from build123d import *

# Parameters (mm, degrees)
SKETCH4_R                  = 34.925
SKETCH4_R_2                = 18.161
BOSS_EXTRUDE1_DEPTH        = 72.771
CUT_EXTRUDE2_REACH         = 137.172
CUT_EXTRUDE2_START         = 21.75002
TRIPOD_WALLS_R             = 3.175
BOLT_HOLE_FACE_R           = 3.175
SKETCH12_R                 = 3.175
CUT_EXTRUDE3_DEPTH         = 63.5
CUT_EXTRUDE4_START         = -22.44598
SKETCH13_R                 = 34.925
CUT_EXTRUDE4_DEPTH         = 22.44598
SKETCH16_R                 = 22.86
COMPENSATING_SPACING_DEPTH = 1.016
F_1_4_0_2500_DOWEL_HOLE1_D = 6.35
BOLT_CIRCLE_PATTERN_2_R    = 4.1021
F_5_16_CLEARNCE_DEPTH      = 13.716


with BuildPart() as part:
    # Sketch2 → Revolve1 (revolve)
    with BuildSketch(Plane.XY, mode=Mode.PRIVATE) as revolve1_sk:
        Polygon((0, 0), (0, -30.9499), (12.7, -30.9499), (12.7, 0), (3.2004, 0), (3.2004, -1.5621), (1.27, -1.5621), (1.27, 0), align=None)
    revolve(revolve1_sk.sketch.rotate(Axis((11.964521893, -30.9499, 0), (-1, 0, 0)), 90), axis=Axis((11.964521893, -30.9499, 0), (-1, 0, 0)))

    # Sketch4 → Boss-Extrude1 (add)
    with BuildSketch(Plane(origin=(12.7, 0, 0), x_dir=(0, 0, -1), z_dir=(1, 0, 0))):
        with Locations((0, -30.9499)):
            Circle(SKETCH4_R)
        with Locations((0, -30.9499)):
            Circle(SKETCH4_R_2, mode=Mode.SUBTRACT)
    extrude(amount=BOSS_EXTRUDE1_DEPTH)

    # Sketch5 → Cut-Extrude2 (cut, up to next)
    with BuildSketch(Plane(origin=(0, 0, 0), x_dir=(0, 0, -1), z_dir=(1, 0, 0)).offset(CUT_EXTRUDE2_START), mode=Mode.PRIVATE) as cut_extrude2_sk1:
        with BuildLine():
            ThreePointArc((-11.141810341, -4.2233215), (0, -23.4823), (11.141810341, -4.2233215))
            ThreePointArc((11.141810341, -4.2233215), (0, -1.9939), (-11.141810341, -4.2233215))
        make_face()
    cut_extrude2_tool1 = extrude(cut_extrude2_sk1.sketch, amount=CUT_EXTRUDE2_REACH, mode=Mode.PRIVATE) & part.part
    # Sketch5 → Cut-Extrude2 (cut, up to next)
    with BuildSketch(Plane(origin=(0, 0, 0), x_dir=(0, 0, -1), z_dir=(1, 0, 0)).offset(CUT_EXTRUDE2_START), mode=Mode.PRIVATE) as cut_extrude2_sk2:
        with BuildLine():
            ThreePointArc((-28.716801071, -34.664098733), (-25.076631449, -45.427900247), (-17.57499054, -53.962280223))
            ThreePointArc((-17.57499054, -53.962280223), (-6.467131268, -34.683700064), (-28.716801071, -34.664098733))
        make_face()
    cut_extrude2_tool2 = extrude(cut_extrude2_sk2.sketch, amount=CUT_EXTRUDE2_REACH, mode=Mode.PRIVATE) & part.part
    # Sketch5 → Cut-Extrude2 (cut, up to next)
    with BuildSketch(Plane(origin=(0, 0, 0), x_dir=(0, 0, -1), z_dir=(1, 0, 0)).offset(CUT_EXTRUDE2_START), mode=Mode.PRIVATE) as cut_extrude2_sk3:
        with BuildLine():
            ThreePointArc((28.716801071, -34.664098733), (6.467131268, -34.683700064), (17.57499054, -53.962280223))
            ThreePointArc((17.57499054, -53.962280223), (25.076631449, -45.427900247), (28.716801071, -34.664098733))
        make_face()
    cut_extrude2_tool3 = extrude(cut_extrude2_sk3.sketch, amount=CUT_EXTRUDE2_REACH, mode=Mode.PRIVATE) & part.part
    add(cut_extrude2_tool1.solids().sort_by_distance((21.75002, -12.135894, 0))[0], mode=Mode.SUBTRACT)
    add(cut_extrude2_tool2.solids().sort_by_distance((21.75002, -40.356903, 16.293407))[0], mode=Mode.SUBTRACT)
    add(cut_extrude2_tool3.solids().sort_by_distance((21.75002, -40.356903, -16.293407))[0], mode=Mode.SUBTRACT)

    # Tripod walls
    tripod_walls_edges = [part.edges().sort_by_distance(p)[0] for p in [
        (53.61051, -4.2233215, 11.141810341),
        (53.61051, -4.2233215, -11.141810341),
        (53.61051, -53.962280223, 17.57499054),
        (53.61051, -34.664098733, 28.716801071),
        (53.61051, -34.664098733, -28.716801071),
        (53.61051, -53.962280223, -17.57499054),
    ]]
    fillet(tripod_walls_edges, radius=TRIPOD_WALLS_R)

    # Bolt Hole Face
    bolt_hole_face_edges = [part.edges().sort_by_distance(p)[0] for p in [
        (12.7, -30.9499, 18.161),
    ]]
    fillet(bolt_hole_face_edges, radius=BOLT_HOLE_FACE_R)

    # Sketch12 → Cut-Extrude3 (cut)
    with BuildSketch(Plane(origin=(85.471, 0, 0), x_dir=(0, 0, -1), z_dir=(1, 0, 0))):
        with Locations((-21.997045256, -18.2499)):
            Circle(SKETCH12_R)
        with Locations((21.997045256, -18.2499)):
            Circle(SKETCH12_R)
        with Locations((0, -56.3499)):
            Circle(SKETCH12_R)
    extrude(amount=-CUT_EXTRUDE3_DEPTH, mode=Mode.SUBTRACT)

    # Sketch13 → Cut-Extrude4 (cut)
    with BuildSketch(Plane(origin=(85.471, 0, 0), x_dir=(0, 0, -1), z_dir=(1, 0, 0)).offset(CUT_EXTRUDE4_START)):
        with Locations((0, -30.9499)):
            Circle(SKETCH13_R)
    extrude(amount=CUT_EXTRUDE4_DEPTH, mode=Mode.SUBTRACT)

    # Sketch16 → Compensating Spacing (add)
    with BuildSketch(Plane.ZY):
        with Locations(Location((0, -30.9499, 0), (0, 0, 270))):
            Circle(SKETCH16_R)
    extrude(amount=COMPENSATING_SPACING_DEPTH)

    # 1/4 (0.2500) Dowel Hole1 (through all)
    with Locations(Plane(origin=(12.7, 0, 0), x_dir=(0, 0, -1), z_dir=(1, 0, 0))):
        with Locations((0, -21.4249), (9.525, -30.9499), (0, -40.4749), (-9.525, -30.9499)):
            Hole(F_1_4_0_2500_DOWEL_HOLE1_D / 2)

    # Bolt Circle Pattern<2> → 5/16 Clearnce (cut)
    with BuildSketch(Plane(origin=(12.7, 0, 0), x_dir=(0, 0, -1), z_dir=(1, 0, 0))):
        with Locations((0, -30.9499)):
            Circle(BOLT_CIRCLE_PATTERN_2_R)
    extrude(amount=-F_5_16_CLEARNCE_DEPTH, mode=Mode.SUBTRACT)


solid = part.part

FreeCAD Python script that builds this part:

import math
import FreeCAD as App
import Part
import Sketcher

V = App.Vector
Q = App.Units.Quantity


def edges_at(feature, points):
    """Names of the edges that pass closest to the given points."""
    edges = feature.Shape.Edges
    near = lambda p: min(range(len(edges)), key=lambda i: edges[i].distToShape(Part.Vertex(*p))[0])
    return sorted({f"Edge{near(p) + 1}" for p in points})


def add_polygon(sketch, points):
    """Adds a closed chain of lines whose ends are joined by coincident constraints."""
    first, n = sketch.GeometryCount, len(points)
    for a, b in zip(points, points[1:] + points[:1]):
        sketch.addGeometry(Part.LineSegment(App.Vector(*a, 0), App.Vector(*b, 0)), False)
    for i in range(n):
        sketch.addConstraint(Sketcher.Constraint("Coincident", first + i, 2, first + (i + 1) % n, 1))

doc = App.newDocument("Part")
body = doc.addObject("PartDesign::Body", "Body")

sketch1 = body.newObject("Sketcher::SketchObject", "Sketch")
sketch1.AttachmentSupport = (doc.getObject("XY_Plane"), [""])
sketch1.MapMode = "FlatFace"
add_polygon(sketch1, [(0, 0), (0, -30.9), (12.7, -30.9), (12.7, 0), (3.2, 0), (3.2, -1.6), (1.3, -1.6), (1.3, 0)])
sketch1.addGeometry(Part.LineSegment(V(12.7, -30.9, 0), V(0, -30.9, 0)), True)
sketch1.addConstraint(Sketcher.Constraint("Vertical", 0))
sketch1.addConstraint(Sketcher.Constraint("Horizontal", 1))
sketch1.addConstraint(Sketcher.Constraint("Vertical", 2))
sketch1.addConstraint(Sketcher.Constraint("Horizontal", 3))
sketch1.addConstraint(Sketcher.Constraint("Vertical", 4))
sketch1.addConstraint(Sketcher.Constraint("Horizontal", 5))
sketch1.addConstraint(Sketcher.Constraint("Vertical", 6))
sketch1.addConstraint(Sketcher.Constraint("Horizontal", 7))
sketch1.addConstraint(Sketcher.Constraint("Horizontal", 8))
sketch1.addConstraint(Sketcher.Constraint("Coincident", 7, 2, -1, 1))
sketch1.addConstraint(Sketcher.Constraint("Coincident", 8, 1, 1, 2))
sketch1.addConstraint(Sketcher.Constraint("PointOnObject", 2, 2, -1))
sketch1.addConstraint(Sketcher.Constraint("PointOnObject", 8, 2, -2))
sketch1.addConstraint(Sketcher.Constraint("DistanceX", 1, 1, 1, 2, Q("0.5 in")))
sketch1.addConstraint(Sketcher.Constraint("DistanceX", 7, 2, 7, 1, Q("0.05 in")))
sketch1.addConstraint(Sketcher.Constraint("DistanceX", 3, 2, 3, 1, Q("0.374 in")))
sketch1.addConstraint(Sketcher.Constraint("DistanceY", 0, 2, 0, 1, Q("1.2185 in")))
sketch1.addConstraint(Sketcher.Constraint("DistanceY", 4, 2, 4, 1, Q("0.0615 in")))
revolution = body.newObject("PartDesign::Revolution", "Revolution")
revolution.Profile = sketch1
revolution.ReferenceAxis = (sketch1, ["Axis0"])
revolution.Angle = 360

sketch2 = body.newObject("Sketcher::SketchObject", "Sketch001")
sketch2.AttachmentSupport = (doc.getObject("YZ_Plane"), [""])
sketch2.MapMode = "FlatFace"
sketch2.AttachmentOffset = App.Placement(V(0, 0, 0.5 * 25.4), App.Rotation())
sketch2.addGeometry(Part.Circle(V(-31, 0, 0), V(0, 0, 1), 35), False)
sketch2.addGeometry(Part.Circle(V(-31, 0, 0), V(0, 0, 1), 18), False)
sketch2.addConstraint(Sketcher.Constraint("Coincident", 1, 3, 0, 3))
sketch2.addConstraint(Sketcher.Constraint("PointOnObject", 0, 3, -1))
sketch2.addConstraint(Sketcher.Constraint("Diameter", 0, Q("2.75 in")))
sketch2.addConstraint(Sketcher.Constraint("Diameter", 1, Q("1.43 in")))
sketch2.addConstraint(Sketcher.Constraint("DistanceX", 0, 3, -1, 1, Q("1.2185 in")))
pad1 = body.newObject("PartDesign::Pad", "Pad")
pad1.Profile = sketch2
pad1.Length = Q("2.865 in")

sketch3 = body.newObject("Sketcher::SketchObject", "Sketch002")
sketch3.AttachmentSupport = (doc.getObject("YZ_Plane"), [""])
sketch3.MapMode = "FlatFace"
sketch3.AttachmentOffset = App.Placement(V(0, 0, 0.8563 * 25.4), App.Rotation())
sketch3.addGeometry(Part.ArcOfCircle(Part.Circle(V(-11, 0, 0), V(0, 0, 1), 13), math.radians(60), math.radians(300)), False)
sketch3.addGeometry(Part.ArcOfCircle(Part.Circle(V(-31, 0, 0), V(0, 0, 1), 29), math.radians(-23), math.radians(23)), False)
sketch3.addConstraint(Sketcher.Constraint("Coincident", 0, 1, 1, 2))
sketch3.addConstraint(Sketcher.Constraint("Coincident", 1, 1, 0, 2))
sketch3.addConstraint(Sketcher.Constraint("Symmetric", 0, 1, 1, 1, -1))
sketch3.addConstraint(Sketcher.Constraint("Radius", 1, Q("1.14 in")))
sketch3.addConstraint(Sketcher.Constraint("Radius", 0, Q("0.506 in")))
sketch3.addConstraint(Sketcher.Constraint("DistanceX", 1, 3, 0, 3, Q("0.8 in")))
sketch3.addConstraint(Sketcher.Constraint("DistanceX", 0, 3, -1, 1, Q("0.4185 in")))
pocket1 = body.newObject("PartDesign::Pocket", "Pocket")
pocket1.Profile = sketch3
pocket1.Type = "UpToFirst"
pocket1.Reversed = True

sketch4 = body.newObject("Sketcher::SketchObject", "Sketch003")
sketch4.AttachmentSupport = (doc.getObject("YZ_Plane"), [""])
sketch4.MapMode = "FlatFace"
sketch4.AttachmentOffset = App.Placement(V(0, 0, 0.8563 * 25.4), App.Rotation())
sketch4.addGeometry(Part.ArcOfCircle(Part.Circle(V(-31, 0, 0), V(0, 0, 1), 29), math.radians(97), math.radians(143)), False)
sketch4.addGeometry(Part.ArcOfCircle(Part.Circle(V(-41, 18, 0), V(0, 0, 1), 13), math.radians(-180), math.radians(60)), False)
sketch4.addConstraint(Sketcher.Constraint("Coincident", 0, 1, 1, 2))
sketch4.addConstraint(Sketcher.Constraint("Coincident", 1, 1, 0, 2))
sketch4.addConstraint(Sketcher.Constraint("PointOnObject", 0, 3, -1))
sketch4.addConstraint(Sketcher.Constraint("Radius", 0, Q("1.14 in")))
sketch4.addConstraint(Sketcher.Constraint("Radius", 1, Q("0.506 in")))
sketch4.addConstraint(Sketcher.Constraint("DistanceX", 1, 3, 0, 3, Q("0.4 in")))
sketch4.addConstraint(Sketcher.Constraint("DistanceX", 0, 3, -1, 1, Q("1.2185 in")))
sketch4.addConstraint(Sketcher.Constraint("DistanceX", 0, 1, -1, 1, Q("34.664099 mm")))
pocket2 = body.newObject("PartDesign::Pocket", "Pocket001")
pocket2.Profile = sketch4
pocket2.Type = "UpToFirst"
pocket2.Reversed = True

sketch5 = body.newObject("Sketcher::SketchObject", "Sketch004")
sketch5.AttachmentSupport = (doc.getObject("YZ_Plane"), [""])
sketch5.MapMode = "FlatFace"
sketch5.AttachmentOffset = App.Placement(V(0, 0, 0.8563 * 25.4), App.Rotation())
sketch5.addGeometry(Part.ArcOfCircle(Part.Circle(V(-41, -18, 0), V(0, 0, 1), 13), math.radians(-60), math.radians(180)), False)
sketch5.addGeometry(Part.ArcOfCircle(Part.Circle(V(-31, 0, 0), V(0, 0, 1), 29), math.radians(-143), math.radians(-97)), False)
sketch5.addConstraint(Sketcher.Constraint("Coincident", 0, 1, 1, 2))
sketch5.addConstraint(Sketcher.Constraint("Coincident", 1, 1, 0, 2))
sketch5.addConstraint(Sketcher.Constraint("PointOnObject", 1, 3, -1))
sketch5.addConstraint(Sketcher.Constraint("Radius", 1, Q("1.14 in")))
sketch5.addConstraint(Sketcher.Constraint("Radius", 0, Q("0.506 in")))
sketch5.addConstraint(Sketcher.Constraint("DistanceX", 0, 3, 1, 3, Q("0.4 in")))
sketch5.addConstraint(Sketcher.Constraint("DistanceX", 0, 3, -1, 1, Q("1.6185 in")))
sketch5.addConstraint(Sketcher.Constraint("DistanceX", 0, 1, -1, 1, Q("34.664099 mm")))
pocket3 = body.newObject("PartDesign::Pocket", "Pocket002")
pocket3.Profile = sketch5
pocket3.Type = "UpToFirst"
pocket3.Reversed = True
doc.recompute()

fillet = body.newObject("PartDesign::Fillet", "Fillet")
fillet.Base = (pocket3, edges_at(pocket3, [
    (53.611, -4.223, 11.142),
    (53.611, -4.223, -11.142),
    (53.611, -53.962, 17.575),
    (53.611, -34.664, 28.717),
    (53.611, -34.664, -28.717),
    (53.611, -53.962, -17.575),
]))
fillet.Radius = Q("0.125 in")
doc.recompute()

fillet2 = body.newObject("PartDesign::Fillet", "Fillet001")
fillet2.Base = (fillet, edges_at(fillet, [(12.7, -30.95, 18.161)]))
fillet2.Radius = Q("0.125 in")

sketch6 = body.newObject("Sketcher::SketchObject", "Sketch005")
sketch6.AttachmentSupport = (doc.getObject("YZ_Plane"), [""])
sketch6.MapMode = "FlatFace"
sketch6.AttachmentOffset = App.Placement(V(0, 0, 3.365 * 25.4), App.Rotation())
sketch6.addGeometry(Part.Circle(V(-18.2, 22, 0), V(0, 0, 1), 3.2), False)
sketch6.addGeometry(Part.Circle(V(-18.2, -22, 0), V(0, 0, 1), 3.2), False)
sketch6.addGeometry(Part.Circle(V(-56.3, 0, 0), V(0, 0, 1), 3.2), False)
sketch6.addConstraint(Sketcher.Constraint("Equal", 0, 1))
sketch6.addConstraint(Sketcher.Constraint("Equal", 1, 2))
sketch6.addConstraint(Sketcher.Constraint("Symmetric", 0, 3, 1, 3, -1))
sketch6.addConstraint(Sketcher.Constraint("PointOnObject", 2, 3, -1))
sketch6.addConstraint(Sketcher.Constraint("Diameter", 0, Q("0.25 in")))
sketch6.addConstraint(Sketcher.Constraint("DistanceX", 2, 3, 0, 3, Q("1.5 in")))
sketch6.addConstraint(Sketcher.Constraint("DistanceX", 0, 3, -1, 1, Q("0.7185 in")))
sketch6.addConstraint(Sketcher.Constraint("DistanceY", 1, 3, 0, 3, Q("43.994091 mm")))
pocket4 = body.newObject("PartDesign::Pocket", "Pocket003")
pocket4.Profile = sketch6
pocket4.Length = Q("2.5 in")

sketch7 = body.newObject("Sketcher::SketchObject", "Sketch006")
sketch7.AttachmentSupport = (doc.getObject("YZ_Plane"), [""])
sketch7.MapMode = "FlatFace"
sketch7.AttachmentOffset = App.Placement(V(0, 0, 2.4813 * 25.4), App.Rotation())
sketch7.addGeometry(Part.Circle(V(-31, 0, 0), V(0, 0, 1), 35), False)
sketch7.addConstraint(Sketcher.Constraint("PointOnObject", 0, 3, -1))
sketch7.addConstraint(Sketcher.Constraint("Diameter", 0, Q("2.75 in")))
sketch7.addConstraint(Sketcher.Constraint("DistanceX", 0, 3, -1, 1, Q("1.2185 in")))
pocket5 = body.newObject("PartDesign::Pocket", "Pocket004")
pocket5.Profile = sketch7
pocket5.Length = Q("0.8837 in")
pocket5.Reversed = True

sketch8 = body.newObject("Sketcher::SketchObject", "Sketch007")
sketch8.AttachmentSupport = (doc.getObject("YZ_Plane"), [""])
sketch8.MapMode = "FlatFace"
sketch8.addGeometry(Part.Circle(V(-31, 0, 0), V(0, 0, 1), 23), False)
sketch8.addConstraint(Sketcher.Constraint("PointOnObject", 0, 3, -1))
sketch8.addConstraint(Sketcher.Constraint("Diameter", 0, Q("1.8 in")))
sketch8.addConstraint(Sketcher.Constraint("DistanceX", 0, 3, -1, 1, Q("1.2185 in")))
pad2 = body.newObject("PartDesign::Pad", "Pad001")
pad2.Profile = sketch8
pad2.Length = Q("0.04 in")
pad2.Reversed = True

sketch9 = body.newObject("Sketcher::SketchObject", "Sketch008")
sketch9.AttachmentSupport = (doc.getObject("YZ_Plane"), [""])
sketch9.MapMode = "FlatFace"
sketch9.AttachmentOffset = App.Placement(V(0, 0, 0.5 * 25.4), App.Rotation())
sketch9.addGeometry(Part.Circle(V(-21.4, 0, 0), V(0, 0, 1), 3.2), False)
sketch9.addGeometry(Part.Circle(V(-30.9, -9.5, 0), V(0, 0, 1), 3.2), False)
sketch9.addGeometry(Part.Circle(V(-40.5, 0, 0), V(0, 0, 1), 3.2), False)
sketch9.addGeometry(Part.Circle(V(-30.9, 9.5, 0), V(0, 0, 1), 3.2), False)
sketch9.addConstraint(Sketcher.Constraint("Equal", 0, 1))
sketch9.addConstraint(Sketcher.Constraint("Equal", 1, 2))
sketch9.addConstraint(Sketcher.Constraint("Equal", 2, 3))
sketch9.addConstraint(Sketcher.Constraint("Symmetric", 1, 3, 3, 3, -1))
sketch9.addConstraint(Sketcher.Constraint("PointOnObject", 0, 3, -1))
sketch9.addConstraint(Sketcher.Constraint("PointOnObject", 2, 3, -1))
sketch9.addConstraint(Sketcher.Constraint("Diameter", 0, Q("0.25 in")))
sketch9.addConstraint(Sketcher.Constraint("DistanceX", 2, 3, 0, 3, Q("0.75 in")))
sketch9.addConstraint(Sketcher.Constraint("DistanceY", 1, 3, 3, 3, Q("0.75 in")))
sketch9.addConstraint(Sketcher.Constraint("DistanceX", 1, 3, 0, 3, Q("0.375 in")))
sketch9.addConstraint(Sketcher.Constraint("DistanceX", 0, 3, -1, 1, Q("0.8435 in")))
doc.recompute()
hole = body.newObject("PartDesign::Hole", "Hole")
hole.Profile = sketch9
hole.ThreadType = "None"
hole.Diameter = Q("0.25 in")
hole.DepthType = "ThroughAll"

sketch10 = body.newObject("Sketcher::SketchObject", "Sketch009")
sketch10.AttachmentSupport = (doc.getObject("YZ_Plane"), [""])
sketch10.MapMode = "FlatFace"
sketch10.AttachmentOffset = App.Placement(V(0, 0, 0.5 * 25.4), App.Rotation())
sketch10.addGeometry(Part.Circle(V(-30.9, 0, 0), V(0, 0, 1), 4.1), False)
sketch10.addConstraint(Sketcher.Constraint("PointOnObject", 0, 3, -1))
sketch10.addConstraint(Sketcher.Constraint("Diameter", 0, Q("0.323 in")))
sketch10.addConstraint(Sketcher.Constraint("DistanceX", 0, 3, -1, 1, Q("1.2185 in")))
pocket6 = body.newObject("PartDesign::Pocket", "Pocket005")
pocket6.Profile = sketch10
pocket6.Length = Q("0.54 in")

doc.recompute()
